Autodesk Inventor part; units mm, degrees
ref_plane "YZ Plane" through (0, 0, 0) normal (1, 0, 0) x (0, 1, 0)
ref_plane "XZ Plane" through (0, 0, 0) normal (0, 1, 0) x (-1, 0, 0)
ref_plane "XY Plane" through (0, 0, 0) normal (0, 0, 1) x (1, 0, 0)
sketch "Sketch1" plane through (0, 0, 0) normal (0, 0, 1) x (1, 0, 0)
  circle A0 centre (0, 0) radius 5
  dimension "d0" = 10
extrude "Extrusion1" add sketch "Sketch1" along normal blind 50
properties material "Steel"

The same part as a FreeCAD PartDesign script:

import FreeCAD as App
import Part
import Sketcher

V = App.Vector

doc = App.newDocument("Part")
body = doc.addObject("PartDesign::Body", "Body")

# Sketch on XY plane
sketch1 = body.newObject("Sketcher::SketchObject", "Sketch")
sketch1.AttachmentSupport = (doc.getObject("XY_Plane"), [""])
sketch1.MapMode = "FlatFace"
sketch1.addGeometry(Part.Circle(V(0, 0, 0), V(0, 0, 1), 5), False)
sketch1.addConstraint([
    Sketcher.Constraint("Coincident", 0, 3, -1, 1),
    Sketcher.Constraint("Diameter", 0, 10.0),
])
pad1 = body.newObject("PartDesign::Pad", "Pad")
pad1.Profile = sketch1
pad1.Length = 50

doc.recompute()
